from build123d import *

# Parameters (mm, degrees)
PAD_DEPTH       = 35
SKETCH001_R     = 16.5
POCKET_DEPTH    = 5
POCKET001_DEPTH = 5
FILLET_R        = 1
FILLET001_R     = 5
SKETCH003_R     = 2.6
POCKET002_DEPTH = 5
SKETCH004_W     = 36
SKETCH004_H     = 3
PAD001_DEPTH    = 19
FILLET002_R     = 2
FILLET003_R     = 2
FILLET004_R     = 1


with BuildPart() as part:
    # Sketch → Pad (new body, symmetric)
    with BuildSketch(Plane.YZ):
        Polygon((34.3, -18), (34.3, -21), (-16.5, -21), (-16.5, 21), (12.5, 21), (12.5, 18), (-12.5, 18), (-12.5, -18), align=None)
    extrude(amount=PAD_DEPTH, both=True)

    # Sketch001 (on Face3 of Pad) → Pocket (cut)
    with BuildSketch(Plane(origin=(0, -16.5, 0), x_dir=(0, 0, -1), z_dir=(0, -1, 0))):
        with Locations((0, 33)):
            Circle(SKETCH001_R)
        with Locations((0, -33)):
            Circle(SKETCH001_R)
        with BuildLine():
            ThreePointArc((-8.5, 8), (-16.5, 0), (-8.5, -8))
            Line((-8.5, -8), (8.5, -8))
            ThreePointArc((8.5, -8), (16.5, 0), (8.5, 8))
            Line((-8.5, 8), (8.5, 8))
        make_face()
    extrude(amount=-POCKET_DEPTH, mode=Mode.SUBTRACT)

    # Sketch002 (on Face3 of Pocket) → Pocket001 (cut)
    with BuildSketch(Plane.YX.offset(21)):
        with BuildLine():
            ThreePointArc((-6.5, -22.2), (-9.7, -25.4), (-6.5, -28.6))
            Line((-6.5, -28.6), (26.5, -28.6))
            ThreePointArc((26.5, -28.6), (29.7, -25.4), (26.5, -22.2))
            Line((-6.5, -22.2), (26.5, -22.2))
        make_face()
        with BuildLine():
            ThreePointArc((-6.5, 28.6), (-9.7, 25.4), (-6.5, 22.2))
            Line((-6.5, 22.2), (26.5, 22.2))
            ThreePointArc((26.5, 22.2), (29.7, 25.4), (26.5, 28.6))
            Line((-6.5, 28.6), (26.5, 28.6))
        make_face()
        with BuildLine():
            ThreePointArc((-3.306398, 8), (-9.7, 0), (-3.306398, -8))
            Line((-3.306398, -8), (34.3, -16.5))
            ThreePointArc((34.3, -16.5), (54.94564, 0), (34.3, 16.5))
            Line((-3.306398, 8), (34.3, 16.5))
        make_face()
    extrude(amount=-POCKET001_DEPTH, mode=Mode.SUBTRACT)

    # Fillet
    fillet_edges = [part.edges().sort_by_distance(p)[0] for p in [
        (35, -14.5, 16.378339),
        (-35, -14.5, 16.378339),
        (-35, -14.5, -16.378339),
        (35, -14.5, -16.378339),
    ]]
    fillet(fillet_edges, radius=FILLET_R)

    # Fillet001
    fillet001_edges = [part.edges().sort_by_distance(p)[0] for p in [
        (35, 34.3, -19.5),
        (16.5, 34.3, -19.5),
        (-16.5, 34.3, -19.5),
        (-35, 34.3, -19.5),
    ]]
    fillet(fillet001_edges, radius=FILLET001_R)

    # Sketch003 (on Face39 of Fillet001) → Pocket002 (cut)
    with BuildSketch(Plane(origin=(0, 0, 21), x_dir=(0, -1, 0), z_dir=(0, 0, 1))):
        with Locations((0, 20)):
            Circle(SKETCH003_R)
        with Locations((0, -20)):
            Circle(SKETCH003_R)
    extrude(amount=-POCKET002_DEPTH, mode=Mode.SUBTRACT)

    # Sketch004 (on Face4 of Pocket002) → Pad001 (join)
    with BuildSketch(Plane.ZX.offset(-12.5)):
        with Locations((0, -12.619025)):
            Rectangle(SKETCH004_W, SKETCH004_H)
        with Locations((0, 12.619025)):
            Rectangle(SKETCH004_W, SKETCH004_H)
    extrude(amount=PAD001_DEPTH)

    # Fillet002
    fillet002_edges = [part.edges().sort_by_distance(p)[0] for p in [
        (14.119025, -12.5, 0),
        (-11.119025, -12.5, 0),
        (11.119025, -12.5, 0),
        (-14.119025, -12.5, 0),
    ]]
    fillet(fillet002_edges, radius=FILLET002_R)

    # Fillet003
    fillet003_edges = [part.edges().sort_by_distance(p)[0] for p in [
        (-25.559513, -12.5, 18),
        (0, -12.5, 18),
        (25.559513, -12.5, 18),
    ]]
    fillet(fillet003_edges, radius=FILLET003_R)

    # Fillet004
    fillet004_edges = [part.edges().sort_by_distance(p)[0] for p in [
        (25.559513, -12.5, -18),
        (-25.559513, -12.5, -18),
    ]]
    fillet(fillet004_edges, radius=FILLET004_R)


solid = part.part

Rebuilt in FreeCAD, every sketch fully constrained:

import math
import FreeCAD as App
import Part
import Sketcher
Q = App.Units.Quantity


def edges_at(feature, points):
    """Names of the edges that pass closest to the given points."""
    edges = feature.Shape.Edges
    near = lambda p: min(range(len(edges)), key=lambda i: edges[i].distToShape(Part.Vertex(*p))[0])
    return sorted({f"Edge{near(p) + 1}" for p in points})

doc = App.newDocument("Part")
body = doc.addObject("PartDesign::Body", "Body")

# Sketch on YZ plane
sketch1 = body.newObject("Sketcher::SketchObject", "Sketch")
sketch1.AttachmentSupport = (doc.getObject("YZ_Plane"), [""])
sketch1.MapMode = "FlatFace"
sketch1.addGeometry([
    Part.LineSegment(App.Vector(34.3, -21, 0), App.Vector(34.3, -18, 0)),  # 0
    Part.LineSegment(App.Vector(34.3, -18, 0), App.Vector(-12.5, -18, 0)),  # 1
    Part.LineSegment(App.Vector(-12.5, -18, 0), App.Vector(-12.5, 18, 0)),  # 2
    Part.LineSegment(App.Vector(-12.5, 18, 0), App.Vector(12.5, 18, 0)),  # 3
    Part.LineSegment(App.Vector(12.5, 18, 0), App.Vector(12.5, 21, 0)),  # 4
    Part.LineSegment(App.Vector(12.5, 21, 0), App.Vector(-16.5, 21, 0)),  # 5
    Part.LineSegment(App.Vector(-16.5, 21, 0), App.Vector(-16.5, -21, 0)),  # 6
    Part.LineSegment(App.Vector(-16.5, -21, 0), App.Vector(34.3, -21, 0)),  # 7
], False)
sketch1.addConstraint([
    Sketcher.Constraint("Coincident", 0, 2, 1, 1),
    Sketcher.Constraint("Coincident", 1, 2, 2, 1),
    Sketcher.Constraint("Coincident", 2, 2, 3, 1),
    Sketcher.Constraint("Coincident", 3, 2, 4, 1),
    Sketcher.Constraint("Coincident", 4, 2, 5, 1),
    Sketcher.Constraint("Coincident", 5, 2, 6, 1),
    Sketcher.Constraint("Coincident", 6, 2, 7, 1),
    Sketcher.Constraint("Coincident", 7, 2, 0, 1),
    Sketcher.Constraint("Vertical", 0),
    Sketcher.Constraint("Horizontal", 1),
    Sketcher.Constraint("Vertical", 2),
    Sketcher.Constraint("Horizontal", 3),
    Sketcher.Constraint("Vertical", 4),
    Sketcher.Constraint("Horizontal", 5),
    Sketcher.Constraint("Vertical", 6),
    Sketcher.Constraint("Horizontal", 7),
    Sketcher.Constraint("Symmetric", 1, 2, 3, 2, -1, 1),
    Sketcher.Constraint("Equal", 0, 4),
    Sketcher.Constraint("DistanceX", 3, 1, 3, 2, Q("25 mm")),
    Sketcher.Constraint("DistanceX", 5, 2, 5, 1, Q("29 mm")),
    Sketcher.Constraint("DistanceY", 0, 1, 0, 2, Q("3 mm")),
    Sketcher.Constraint("DistanceY", 2, 1, 2, 2, Q("36 mm")),
    Sketcher.Constraint("DistanceX", 1, 2, 1, 1, Q("46.8 mm")),
])
pad1 = body.newObject("PartDesign::Pad", "Pad")
pad1.Profile = sketch1
pad1.Length = 70
pad1.Midplane = True

# Sketch on XZ plane
sketch2 = body.newObject("Sketcher::SketchObject", "Sketch001")
sketch2.AttachmentSupport = (doc.getObject("XZ_Plane"), [""])
sketch2.MapMode = "FlatFace"
sketch2.AttachmentOffset = App.Placement(App.Vector(0, 0, 16.5), App.Rotation())
sketch2.addGeometry([
    Part.Circle(App.Vector(33, 0, 0), App.Vector(0, 0, 1), 16),  # 0
    Part.Circle(App.Vector(-33, 0, 0), App.Vector(0, 0, 1), 16),  # 1
    Part.ArcOfCircle(Part.Circle(App.Vector(0, 8, 0), App.Vector(0, 0, 1), 8), math.radians(0), math.radians(180)),  # 2
    Part.LineSegment(App.Vector(-8, 8, 0), App.Vector(-8, -8, 0)),  # 3
    Part.ArcOfCircle(Part.Circle(App.Vector(0, -8, 0), App.Vector(0, 0, 1), 8), math.radians(180), math.radians(360)),  # 4
    Part.LineSegment(App.Vector(8, -8, 0), App.Vector(8, 8, 0)),  # 5
], False)
sketch2.addConstraint([
    Sketcher.Constraint("Tangent", 2, 2, 3, 1),
    Sketcher.Constraint("Tangent", 3, 2, 4, 1),
    Sketcher.Constraint("Tangent", 4, 2, 5, 1),
    Sketcher.Constraint("Tangent", 5, 2, 2, 1),
    Sketcher.Constraint("Vertical", 3),
    Sketcher.Constraint("Vertical", 5),
    Sketcher.Constraint("Equal", 0, 1),
    Sketcher.Constraint("Symmetric", 0, 3, 1, 3, -1, 1),
    Sketcher.Constraint("Symmetric", 2, 3, 4, 3, -1, 1),
    Sketcher.Constraint("PointOnObject", 0, 3, -1),
    Sketcher.Constraint("Diameter", 0, Q("33 mm")),
    Sketcher.Constraint("Radius", 2, Q("8 mm")),
    Sketcher.Constraint("DistanceY", 3, 2, 3, 1, Q("17 mm")),
    Sketcher.Constraint("DistanceX", -1, 1, 0, 3, Q("33 mm")),
])
pocket1 = body.newObject("PartDesign::Pocket", "Pocket")
pocket1.Profile = sketch2
pocket1.Length = 5

# Sketch on XY plane
sketch3 = body.newObject("Sketcher::SketchObject", "Sketch002")
sketch3.AttachmentSupport = (doc.getObject("XY_Plane"), [""])
sketch3.MapMode = "FlatFace"
sketch3.AttachmentOffset = App.Placement(App.Vector(0, 0, -21), App.Rotation())
sketch3.addGeometry([
    Part.ArcOfCircle(Part.Circle(App.Vector(-25.4, -6.5, 0), App.Vector(0, 0, 1), 3.2), math.radians(180), math.radians(360)),  # 0
    Part.LineSegment(App.Vector(-28.6, -6.5, 0), App.Vector(-28.6, 26.5, 0)),  # 1
    Part.ArcOfCircle(Part.Circle(App.Vector(-25.4, 26.5, 0), App.Vector(0, 0, 1), 3.2), math.radians(0), math.radians(180)),  # 2
    Part.LineSegment(App.Vector(-22.2, 26.5, 0), App.Vector(-22.2, -6.5, 0)),  # 3
    Part.ArcOfCircle(Part.Circle(App.Vector(25.4, -6.5, 0), App.Vector(0, 0, 1), 3.2), math.radians(180), math.radians(360)),  # 4
    Part.LineSegment(App.Vector(22.2, -6.5, 0), App.Vector(22.2, 26.5, 0)),  # 5
    Part.ArcOfCircle(Part.Circle(App.Vector(25.4, 26.5, 0), App.Vector(0, 0, 1), 3.2), math.radians(0), math.radians(180)),  # 6
    Part.LineSegment(App.Vector(28.6, 26.5, 0), App.Vector(28.6, -6.5, 0)),  # 7
    Part.ArcOfCircle(Part.Circle(App.Vector(0, -1.5, 0), App.Vector(0, 0, 1), 8.2), math.radians(-167), math.radians(-13)),  # 8
    Part.LineSegment(App.Vector(-8, -3.3, 0), App.Vector(-16.5, 34.3, 0)),  # 9
    Part.ArcOfCircle(Part.Circle(App.Vector(0, 38, 0), App.Vector(0, 0, 1), 16.9), math.radians(-13), math.radians(193)),  # 10
    Part.LineSegment(App.Vector(16.5, 34.3, 0), App.Vector(8, -3.3, 0)),  # 11
], False)
sketch3.addConstraint([
    Sketcher.Constraint("Tangent", 0, 1, 1, 1),
    Sketcher.Constraint("Tangent", 1, 2, 2, 2),
    Sketcher.Constraint("Tangent", 2, 1, 3, 1),
    Sketcher.Constraint("Tangent", 3, 2, 0, 2),
    Sketcher.Constraint("Tangent", 4, 1, 5, 1),
    Sketcher.Constraint("Tangent", 5, 2, 6, 2),
    Sketcher.Constraint("Tangent", 6, 1, 7, 1),
    Sketcher.Constraint("Tangent", 7, 2, 4, 2),
    Sketcher.Constraint("Tangent", 8, 1, 9, 1),
    Sketcher.Constraint("Tangent", 9, 2, 10, 2),
    Sketcher.Constraint("Tangent", 10, 1, 11, 1),
    Sketcher.Constraint("Tangent", 11, 2, 8, 2),
    Sketcher.Constraint("Vertical", 1),
    Sketcher.Constraint("Vertical", 3),
    Sketcher.Constraint("Vertical", 5),
    Sketcher.Constraint("Vertical", 7),
    Sketcher.Constraint("Equal", 2, 4),
    Sketcher.Constraint("Symmetric", 0, 3, 4, 3, -2),
    Sketcher.Constraint("Symmetric", 9, 2, 10, 1, -2),
    Sketcher.Constraint("Horizontal", 2, 3, 6, 3),
    Sketcher.Constraint("Radius", 0, Q("3.2 mm")),
    Sketcher.Constraint("DistanceY", 1, 1, 1, 2, Q("33 mm")),
    Sketcher.Constraint("DistanceX", 8, 1, -1, 1, Q("8 mm")),
    Sketcher.Constraint("DistanceX", 0, 1, 4, 3, Q("54 mm")),
    Sketcher.Constraint("DistanceX", 9, 2, 10, 1, Q("33 mm")),
    Sketcher.Constraint("DistanceY", 0, 3, -1, 1, Q("6.5 mm")),
    Sketcher.Constraint("DistanceY", -1, 1, 9, 2, Q("34.3 mm")),
    Sketcher.Constraint("Radius", 10, Q("16.916222 mm")),
])
pocket2 = body.newObject("PartDesign::Pocket", "Pocket001")
pocket2.Profile = sketch3
pocket2.Length = 5
pocket2.Reversed = True
doc.recompute()

fillet = body.newObject("PartDesign::Fillet", "Fillet")
fillet.Base = (pocket2, edges_at(pocket2, [
    (35, -14.5, 16.378),
    (-35, -14.5, 16.378),
    (-35, -14.5, -16.378),
    (35, -14.5, -16.378),
]))
fillet.Radius = 1
doc.recompute()

fillet2 = body.newObject("PartDesign::Fillet", "Fillet001")
fillet2.Base = (fillet, edges_at(fillet, [
    (35, 34.3, -19.5),
    (16.5, 34.3, -19.5),
    (-16.5, 34.3, -19.5),
    (-35, 34.3, -19.5),
]))
fillet2.Radius = 5

# Sketch on XY plane
sketch4 = body.newObject("Sketcher::SketchObject", "Sketch003")
sketch4.AttachmentSupport = (doc.getObject("XY_Plane"), [""])
sketch4.MapMode = "FlatFace"
sketch4.AttachmentOffset = App.Placement(App.Vector(0, 0, 21), App.Rotation())
sketch4.addGeometry([
    Part.Circle(App.Vector(20, 0, 0), App.Vector(0, 0, 1), 2.6),
    Part.Circle(App.Vector(-20, 0, 0), App.Vector(0, 0, 1), 2.6),
], False)
sketch4.addConstraint([
    Sketcher.Constraint("Equal", 0, 1),
    Sketcher.Constraint("Symmetric", 0, 3, 1, 3, -1, 1),
    Sketcher.Constraint("PointOnObject", 0, 3, -1),
    Sketcher.Constraint("Diameter", 0, Q("5.2 mm")),
    Sketcher.Constraint("DistanceX", -1, 1, 0, 3, Q("20 mm")),
])
pocket3 = body.newObject("PartDesign::Pocket", "Pocket002")
pocket3.Profile = sketch4
pocket3.Length = 5

# Sketch on XZ plane
sketch5 = body.newObject("Sketcher::SketchObject", "Sketch004")
sketch5.AttachmentSupport = (doc.getObject("XZ_Plane"), [""])
sketch5.MapMode = "FlatFace"
sketch5.AttachmentOffset = App.Placement(App.Vector(0, 0, 12.5), App.Rotation())
sketch5.addGeometry([
    Part.LineSegment(App.Vector(-11.1, -18, 0), App.Vector(-14.1, -18, 0)),  # 0
    Part.LineSegment(App.Vector(-14.1, -18, 0), App.Vector(-14.1, 18, 0)),  # 1
    Part.LineSegment(App.Vector(-14.1, 18, 0), App.Vector(-11.1, 18, 0)),  # 2
    Part.LineSegment(App.Vector(-11.1, 18, 0), App.Vector(-11.1, -18, 0)),  # 3
    Part.LineSegment(App.Vector(14.1, -18, 0), App.Vector(11.1, -18, 0)),  # 4
    Part.LineSegment(App.Vector(11.1, -18, 0), App.Vector(11.1, 18, 0)),  # 5
    Part.LineSegment(App.Vector(11.1, 18, 0), App.Vector(14.1, 18, 0)),  # 6
    Part.LineSegment(App.Vector(14.1, 18, 0), App.Vector(14.1, -18, 0)),  # 7
], False)
sketch5.addConstraint([
    Sketcher.Constraint("Coincident", 0, 2, 1, 1),
    Sketcher.Constraint("Coincident", 1, 2, 2, 1),
    Sketcher.Constraint("Coincident", 2, 2, 3, 1),
    Sketcher.Constraint("Coincident", 3, 2, 0, 1),
    Sketcher.Constraint("Coincident", 4, 2, 5, 1),
    Sketcher.Constraint("Coincident", 5, 2, 6, 1),
    Sketcher.Constraint("Coincident", 6, 2, 7, 1),
    Sketcher.Constraint("Coincident", 7, 2, 4, 1),
    Sketcher.Constraint("Horizontal", 0),
    Sketcher.Constraint("Vertical", 1),
    Sketcher.Constraint("Horizontal", 2),
    Sketcher.Constraint("Vertical", 3),
    Sketcher.Constraint("Horizontal", 4),
    Sketcher.Constraint("Vertical", 5),
    Sketcher.Constraint("Horizontal", 6),
    Sketcher.Constraint("Vertical", 7),
    Sketcher.Constraint("Symmetric", 2, 2, 4, 2, -1, 1),
    Sketcher.Constraint("Symmetric", 0, 2, 6, 2, -1, 1),
    Sketcher.Constraint("Horizontal", 3, 2, 4, 2),
    Sketcher.Constraint("DistanceX", 0, 2, 0, 1, Q("3 mm")),
    Sketcher.Constraint("DistanceY", 1, 1, 1, 2, Q("36 mm")),
    Sketcher.Constraint("DistanceX", 3, 2, 4, 2, Q("22.23805 mm")),
])
pad2 = body.newObject("PartDesign::Pad", "Pad001")
pad2.Profile = sketch5
pad2.Length = 19
pad2.Reversed = True
doc.recompute()

fillet3 = body.newObject("PartDesign::Fillet", "Fillet002")
fillet3.Base = (pad2, edges_at(pad2, [
    (14.119, -12.5, 0),
    (-11.119, -12.5, 0),
    (11.119, -12.5, 0),
    (-14.119, -12.5, 0),
]))
fillet3.Radius = 2
doc.recompute()

fillet4 = body.newObject("PartDesign::Fillet", "Fillet003")
fillet4.Base = (fillet3, edges_at(fillet3, [(-25.56, -12.5, 18), (0, -12.5, 18), (25.56, -12.5, 18)]))
fillet4.Radius = 2
doc.recompute()

fillet5 = body.newObject("PartDesign::Fillet", "Fillet004")
fillet5.Base = (fillet4, edges_at(fillet4, [(25.56, -12.5, -18), (-25.56, -12.5, -18)]))
fillet5.Radius = 1

doc.recompute()
